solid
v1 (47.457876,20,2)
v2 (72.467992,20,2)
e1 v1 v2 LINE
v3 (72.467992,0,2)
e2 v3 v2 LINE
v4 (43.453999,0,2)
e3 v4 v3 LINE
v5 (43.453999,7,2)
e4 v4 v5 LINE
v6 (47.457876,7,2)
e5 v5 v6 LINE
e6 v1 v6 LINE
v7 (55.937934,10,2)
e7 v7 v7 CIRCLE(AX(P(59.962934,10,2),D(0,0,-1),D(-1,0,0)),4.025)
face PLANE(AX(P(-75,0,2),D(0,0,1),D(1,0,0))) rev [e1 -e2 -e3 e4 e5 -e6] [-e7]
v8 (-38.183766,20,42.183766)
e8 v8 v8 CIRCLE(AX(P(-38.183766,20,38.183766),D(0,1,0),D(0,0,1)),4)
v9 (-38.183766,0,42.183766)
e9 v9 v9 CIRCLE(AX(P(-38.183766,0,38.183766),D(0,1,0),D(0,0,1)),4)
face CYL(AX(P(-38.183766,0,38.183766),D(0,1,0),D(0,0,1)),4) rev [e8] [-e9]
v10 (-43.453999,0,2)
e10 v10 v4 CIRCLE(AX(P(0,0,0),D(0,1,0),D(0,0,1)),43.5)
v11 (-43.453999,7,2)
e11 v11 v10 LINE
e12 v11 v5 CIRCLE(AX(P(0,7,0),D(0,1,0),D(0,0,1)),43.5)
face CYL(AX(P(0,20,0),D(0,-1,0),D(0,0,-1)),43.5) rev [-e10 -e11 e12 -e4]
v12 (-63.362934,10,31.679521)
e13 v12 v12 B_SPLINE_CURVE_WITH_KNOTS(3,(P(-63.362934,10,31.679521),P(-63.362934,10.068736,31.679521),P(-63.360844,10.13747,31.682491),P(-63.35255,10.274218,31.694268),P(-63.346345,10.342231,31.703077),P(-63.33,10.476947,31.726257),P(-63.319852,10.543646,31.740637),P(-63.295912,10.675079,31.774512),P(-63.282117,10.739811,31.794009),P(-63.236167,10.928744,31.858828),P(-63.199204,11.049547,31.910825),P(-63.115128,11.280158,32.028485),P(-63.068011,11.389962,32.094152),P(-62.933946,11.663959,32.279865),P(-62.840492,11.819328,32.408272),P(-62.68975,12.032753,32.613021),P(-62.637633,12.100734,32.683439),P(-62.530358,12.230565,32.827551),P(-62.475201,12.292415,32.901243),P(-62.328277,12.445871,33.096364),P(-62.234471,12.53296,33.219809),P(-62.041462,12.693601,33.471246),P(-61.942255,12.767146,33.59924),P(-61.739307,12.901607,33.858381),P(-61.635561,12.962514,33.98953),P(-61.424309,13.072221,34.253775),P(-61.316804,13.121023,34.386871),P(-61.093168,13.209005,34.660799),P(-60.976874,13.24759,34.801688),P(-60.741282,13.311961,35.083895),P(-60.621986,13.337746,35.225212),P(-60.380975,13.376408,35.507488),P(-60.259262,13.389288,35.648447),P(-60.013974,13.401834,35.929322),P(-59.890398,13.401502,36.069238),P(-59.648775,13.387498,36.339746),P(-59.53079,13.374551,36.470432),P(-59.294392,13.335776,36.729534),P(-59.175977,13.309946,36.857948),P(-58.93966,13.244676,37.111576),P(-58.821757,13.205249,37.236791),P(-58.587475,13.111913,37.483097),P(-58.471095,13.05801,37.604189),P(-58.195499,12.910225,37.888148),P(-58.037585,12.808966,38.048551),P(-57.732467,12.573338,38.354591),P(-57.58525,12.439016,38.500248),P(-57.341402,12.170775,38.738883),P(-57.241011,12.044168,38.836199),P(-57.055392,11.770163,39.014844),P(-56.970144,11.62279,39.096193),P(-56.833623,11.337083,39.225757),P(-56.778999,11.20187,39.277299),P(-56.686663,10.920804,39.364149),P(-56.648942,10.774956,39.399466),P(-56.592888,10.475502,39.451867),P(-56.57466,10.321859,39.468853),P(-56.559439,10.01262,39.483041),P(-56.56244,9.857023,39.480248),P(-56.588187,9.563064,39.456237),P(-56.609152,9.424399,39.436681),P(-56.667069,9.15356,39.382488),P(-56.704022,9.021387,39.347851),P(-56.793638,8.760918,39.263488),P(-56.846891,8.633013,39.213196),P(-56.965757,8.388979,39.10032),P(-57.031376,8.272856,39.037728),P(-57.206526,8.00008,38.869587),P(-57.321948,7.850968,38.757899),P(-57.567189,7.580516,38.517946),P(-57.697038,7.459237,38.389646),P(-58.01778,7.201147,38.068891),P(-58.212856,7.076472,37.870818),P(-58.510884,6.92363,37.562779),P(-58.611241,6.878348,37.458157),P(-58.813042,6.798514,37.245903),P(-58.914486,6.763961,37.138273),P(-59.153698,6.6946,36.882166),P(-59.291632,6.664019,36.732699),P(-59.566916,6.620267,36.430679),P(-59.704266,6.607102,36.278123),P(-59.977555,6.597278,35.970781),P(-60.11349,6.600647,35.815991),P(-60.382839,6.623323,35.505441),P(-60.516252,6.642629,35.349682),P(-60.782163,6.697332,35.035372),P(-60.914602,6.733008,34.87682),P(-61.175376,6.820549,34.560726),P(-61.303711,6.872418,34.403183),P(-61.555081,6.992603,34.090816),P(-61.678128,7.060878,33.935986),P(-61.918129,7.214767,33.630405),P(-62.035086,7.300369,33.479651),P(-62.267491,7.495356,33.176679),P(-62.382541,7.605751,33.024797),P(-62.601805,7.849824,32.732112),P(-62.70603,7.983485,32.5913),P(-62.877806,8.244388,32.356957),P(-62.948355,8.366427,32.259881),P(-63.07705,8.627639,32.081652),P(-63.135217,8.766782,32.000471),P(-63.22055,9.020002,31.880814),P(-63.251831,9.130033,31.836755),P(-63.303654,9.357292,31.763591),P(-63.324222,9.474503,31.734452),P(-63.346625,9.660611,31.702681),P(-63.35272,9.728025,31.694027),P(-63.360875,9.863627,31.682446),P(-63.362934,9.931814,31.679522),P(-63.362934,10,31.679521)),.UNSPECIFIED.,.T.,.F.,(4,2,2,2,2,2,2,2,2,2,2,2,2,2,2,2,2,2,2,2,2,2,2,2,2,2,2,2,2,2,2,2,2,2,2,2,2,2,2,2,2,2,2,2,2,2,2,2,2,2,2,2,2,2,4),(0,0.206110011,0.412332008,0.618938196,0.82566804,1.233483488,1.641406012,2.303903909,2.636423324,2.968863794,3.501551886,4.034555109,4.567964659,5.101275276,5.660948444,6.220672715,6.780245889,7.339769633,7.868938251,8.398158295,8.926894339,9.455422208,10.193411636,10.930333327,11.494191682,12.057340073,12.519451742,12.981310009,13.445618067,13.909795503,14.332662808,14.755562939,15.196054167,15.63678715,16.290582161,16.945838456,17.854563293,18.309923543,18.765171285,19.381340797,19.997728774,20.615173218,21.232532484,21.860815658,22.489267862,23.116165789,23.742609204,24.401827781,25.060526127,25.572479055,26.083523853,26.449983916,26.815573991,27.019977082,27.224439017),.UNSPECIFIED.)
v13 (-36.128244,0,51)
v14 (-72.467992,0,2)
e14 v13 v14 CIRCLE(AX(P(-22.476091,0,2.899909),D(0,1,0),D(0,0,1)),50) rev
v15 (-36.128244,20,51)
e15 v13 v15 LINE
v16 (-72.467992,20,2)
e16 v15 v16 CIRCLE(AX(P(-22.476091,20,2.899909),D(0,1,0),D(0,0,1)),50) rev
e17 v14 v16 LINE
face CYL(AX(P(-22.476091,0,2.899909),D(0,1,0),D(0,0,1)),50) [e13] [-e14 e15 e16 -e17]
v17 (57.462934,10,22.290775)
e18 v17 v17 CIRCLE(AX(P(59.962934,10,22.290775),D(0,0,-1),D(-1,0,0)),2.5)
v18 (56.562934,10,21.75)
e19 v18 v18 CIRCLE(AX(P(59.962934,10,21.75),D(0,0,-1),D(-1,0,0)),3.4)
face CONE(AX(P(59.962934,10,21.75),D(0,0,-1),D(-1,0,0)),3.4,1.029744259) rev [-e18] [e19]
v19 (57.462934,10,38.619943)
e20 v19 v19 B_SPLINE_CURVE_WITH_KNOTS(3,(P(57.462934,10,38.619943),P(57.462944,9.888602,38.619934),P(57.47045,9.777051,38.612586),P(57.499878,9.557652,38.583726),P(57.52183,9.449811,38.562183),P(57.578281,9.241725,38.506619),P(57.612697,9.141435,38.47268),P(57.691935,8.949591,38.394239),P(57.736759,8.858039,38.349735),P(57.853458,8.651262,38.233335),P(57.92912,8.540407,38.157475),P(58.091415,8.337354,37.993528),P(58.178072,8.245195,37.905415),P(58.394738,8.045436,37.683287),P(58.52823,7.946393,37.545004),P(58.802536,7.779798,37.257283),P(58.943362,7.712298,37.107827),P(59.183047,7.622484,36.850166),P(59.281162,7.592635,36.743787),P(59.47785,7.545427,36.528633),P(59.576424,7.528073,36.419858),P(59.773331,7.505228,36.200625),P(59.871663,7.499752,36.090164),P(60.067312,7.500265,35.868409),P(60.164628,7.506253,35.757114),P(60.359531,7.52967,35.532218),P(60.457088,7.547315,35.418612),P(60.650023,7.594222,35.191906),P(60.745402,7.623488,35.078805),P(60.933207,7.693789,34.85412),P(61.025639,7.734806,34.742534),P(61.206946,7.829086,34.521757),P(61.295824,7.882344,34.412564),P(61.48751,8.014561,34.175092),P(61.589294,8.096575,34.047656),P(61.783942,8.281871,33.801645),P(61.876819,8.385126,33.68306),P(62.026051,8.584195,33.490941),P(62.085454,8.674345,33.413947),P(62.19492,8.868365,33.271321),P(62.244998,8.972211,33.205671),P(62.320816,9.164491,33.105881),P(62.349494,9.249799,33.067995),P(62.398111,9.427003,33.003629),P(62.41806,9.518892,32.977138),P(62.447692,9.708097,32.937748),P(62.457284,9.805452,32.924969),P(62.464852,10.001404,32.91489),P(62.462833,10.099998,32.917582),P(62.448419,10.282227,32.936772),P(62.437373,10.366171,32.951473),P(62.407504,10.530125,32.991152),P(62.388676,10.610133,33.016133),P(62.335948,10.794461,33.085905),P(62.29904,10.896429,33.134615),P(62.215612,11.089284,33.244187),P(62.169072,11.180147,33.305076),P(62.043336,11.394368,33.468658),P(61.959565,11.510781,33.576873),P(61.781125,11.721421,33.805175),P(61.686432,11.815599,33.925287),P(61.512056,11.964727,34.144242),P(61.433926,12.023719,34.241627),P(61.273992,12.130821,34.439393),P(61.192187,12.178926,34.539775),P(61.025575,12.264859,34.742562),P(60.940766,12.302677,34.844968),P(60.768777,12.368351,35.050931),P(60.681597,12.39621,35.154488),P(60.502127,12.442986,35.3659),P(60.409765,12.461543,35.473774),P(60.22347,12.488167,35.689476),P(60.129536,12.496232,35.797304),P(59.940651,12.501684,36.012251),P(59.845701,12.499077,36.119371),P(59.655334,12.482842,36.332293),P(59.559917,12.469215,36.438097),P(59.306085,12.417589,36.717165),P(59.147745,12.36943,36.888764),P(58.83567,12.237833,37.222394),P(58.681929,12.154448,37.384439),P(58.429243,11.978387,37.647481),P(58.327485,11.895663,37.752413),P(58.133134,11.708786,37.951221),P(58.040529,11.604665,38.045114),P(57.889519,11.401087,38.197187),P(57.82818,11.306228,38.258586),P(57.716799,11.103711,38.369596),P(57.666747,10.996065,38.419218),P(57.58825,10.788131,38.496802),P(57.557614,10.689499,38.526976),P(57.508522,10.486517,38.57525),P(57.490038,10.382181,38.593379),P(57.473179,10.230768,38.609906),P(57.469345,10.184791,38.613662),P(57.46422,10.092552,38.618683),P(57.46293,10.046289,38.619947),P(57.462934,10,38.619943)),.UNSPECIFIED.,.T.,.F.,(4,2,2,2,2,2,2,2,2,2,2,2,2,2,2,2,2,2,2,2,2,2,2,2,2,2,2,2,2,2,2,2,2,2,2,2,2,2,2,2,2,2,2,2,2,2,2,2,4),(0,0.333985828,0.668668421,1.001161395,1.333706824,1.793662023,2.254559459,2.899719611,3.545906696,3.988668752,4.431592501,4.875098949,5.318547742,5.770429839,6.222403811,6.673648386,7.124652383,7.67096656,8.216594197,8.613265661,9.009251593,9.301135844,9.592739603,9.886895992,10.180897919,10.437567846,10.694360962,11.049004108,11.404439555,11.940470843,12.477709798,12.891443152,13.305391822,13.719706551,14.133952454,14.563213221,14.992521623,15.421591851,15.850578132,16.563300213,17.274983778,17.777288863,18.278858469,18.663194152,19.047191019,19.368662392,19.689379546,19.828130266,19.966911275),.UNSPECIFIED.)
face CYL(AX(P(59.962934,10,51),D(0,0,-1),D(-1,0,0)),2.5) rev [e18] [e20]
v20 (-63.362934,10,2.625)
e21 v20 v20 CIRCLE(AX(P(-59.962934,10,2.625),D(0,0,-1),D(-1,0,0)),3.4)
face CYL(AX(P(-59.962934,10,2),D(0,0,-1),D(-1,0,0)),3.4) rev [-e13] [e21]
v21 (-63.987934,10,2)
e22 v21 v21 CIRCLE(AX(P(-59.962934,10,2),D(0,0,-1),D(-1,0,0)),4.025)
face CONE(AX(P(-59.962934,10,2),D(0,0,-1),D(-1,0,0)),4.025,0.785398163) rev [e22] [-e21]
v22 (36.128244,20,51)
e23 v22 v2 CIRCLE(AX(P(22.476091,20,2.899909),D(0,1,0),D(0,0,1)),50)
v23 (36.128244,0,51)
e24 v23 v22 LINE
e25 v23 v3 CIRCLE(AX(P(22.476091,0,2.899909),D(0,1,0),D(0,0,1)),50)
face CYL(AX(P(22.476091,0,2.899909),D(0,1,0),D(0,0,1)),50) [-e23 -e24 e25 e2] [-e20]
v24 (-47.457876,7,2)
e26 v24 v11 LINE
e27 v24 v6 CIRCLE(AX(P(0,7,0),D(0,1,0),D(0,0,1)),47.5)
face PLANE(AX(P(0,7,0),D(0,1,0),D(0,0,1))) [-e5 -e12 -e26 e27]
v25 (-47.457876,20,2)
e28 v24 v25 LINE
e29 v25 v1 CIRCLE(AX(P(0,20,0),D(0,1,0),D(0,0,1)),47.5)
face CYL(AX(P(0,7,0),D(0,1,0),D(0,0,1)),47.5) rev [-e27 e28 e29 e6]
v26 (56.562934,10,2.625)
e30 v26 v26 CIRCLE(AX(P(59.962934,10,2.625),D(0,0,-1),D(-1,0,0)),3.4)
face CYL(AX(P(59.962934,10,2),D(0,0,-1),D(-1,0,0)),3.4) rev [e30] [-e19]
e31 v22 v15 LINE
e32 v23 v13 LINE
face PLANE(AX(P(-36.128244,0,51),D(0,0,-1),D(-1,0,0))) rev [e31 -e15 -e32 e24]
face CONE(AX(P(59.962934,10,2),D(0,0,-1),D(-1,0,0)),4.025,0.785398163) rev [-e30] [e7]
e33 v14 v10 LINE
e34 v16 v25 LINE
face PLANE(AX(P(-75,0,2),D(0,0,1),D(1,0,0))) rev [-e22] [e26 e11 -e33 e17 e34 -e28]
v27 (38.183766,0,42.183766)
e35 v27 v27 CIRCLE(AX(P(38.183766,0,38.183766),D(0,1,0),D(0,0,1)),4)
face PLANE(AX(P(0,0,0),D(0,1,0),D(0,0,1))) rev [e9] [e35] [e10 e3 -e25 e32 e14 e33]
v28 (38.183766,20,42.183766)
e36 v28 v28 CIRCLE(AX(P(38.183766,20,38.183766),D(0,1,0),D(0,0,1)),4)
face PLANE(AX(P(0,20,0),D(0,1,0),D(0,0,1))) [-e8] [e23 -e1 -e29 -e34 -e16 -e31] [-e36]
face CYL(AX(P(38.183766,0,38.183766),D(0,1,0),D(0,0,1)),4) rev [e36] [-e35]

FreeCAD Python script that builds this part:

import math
import FreeCAD as App
import Part
import Sketcher

V = App.Vector


def add_polygon(sketch, points):
    """Adds a closed chain of lines whose ends are joined by coincident constraints."""
    first, n = sketch.GeometryCount, len(points)
    for a, b in zip(points, points[1:] + points[:1]):
        sketch.addGeometry(Part.LineSegment(App.Vector(*a, 0), App.Vector(*b, 0)), False)
    for i in range(n):
        sketch.addConstraint(Sketcher.Constraint("Coincident", first + i, 2, first + (i + 1) % n, 1))

doc = App.newDocument("Part")
body = doc.addObject("PartDesign::Body", "Body")

# Sketch on XZ plane
sketch1 = body.newObject("Sketcher::SketchObject", "Sketch")
sketch1.AttachmentSupport = (doc.getObject("XZ_Plane"), [""])
sketch1.MapMode = "FlatFace"
sketch1.addGeometry(Part.Circle(V(0, 0, 0), V(0, 0, 1), 62.5), False)
sketch1.addGeometry(Part.Circle(V(0, 0, 0), V(0, 0, 1), 43.5), False)
sketch1.addConstraint(Sketcher.Constraint("Coincident", 0, 3, -1, 1))
sketch1.addConstraint(Sketcher.Constraint("Coincident", 1, 3, -1, 1))
sketch1.addConstraint(Sketcher.Constraint("Diameter", 0, 125.0))
sketch1.addConstraint(Sketcher.Constraint("Diameter", 1, 87.0))
pad1 = body.newObject("PartDesign::Pad", "Pad")
pad1.Profile = sketch1
pad1.Length = 20
pad1.Reversed = True

# Sketch on XZ plane
sketch2 = body.newObject("Sketcher::SketchObject", "Sketch001")
sketch2.AttachmentSupport = (doc.getObject("XZ_Plane"), [""])
sketch2.MapMode = "FlatFace"
sketch2.AttachmentOffset = App.Placement(V(0, 0, -20), App.Rotation())
sketch2.addGeometry(Part.Circle(V(0, 0, 0), V(0, 0, 1), 47.5), False)
sketch2.addConstraint(Sketcher.Constraint("Coincident", 0, 3, -1, 1))
sketch2.addConstraint(Sketcher.Constraint("Diameter", 0, 95.0))
pocket1 = body.newObject("PartDesign::Pocket", "Pocket")
pocket1.Profile = sketch2
pocket1.Length = 13
pocket1.Reversed = True

# Sketch on XZ plane
sketch3 = body.newObject("Sketcher::SketchObject", "Sketch002")
sketch3.AttachmentSupport = (doc.getObject("XZ_Plane"), [""])
sketch3.MapMode = "FlatFace"
sketch3.AttachmentOffset = App.Placement(V(0, 0, -20), App.Rotation())
sketch3.addGeometry(Part.Circle(V(38.183766, -38.183766, 0), V(0, 0, 1), 4), False)
sketch3.addGeometry(Part.Circle(V(38.183766, 38.183766, 0), V(0, 0, 1), 4), False)
sketch3.addGeometry(Part.Circle(V(-38.183766, 38.183766, 0), V(0, 0, 1), 4), False)
sketch3.addGeometry(Part.Circle(V(-38.183766, -38.183766, 0), V(0, 0, 1), 4), False)
sketch3.addConstraint(Sketcher.Constraint("Equal", 0, 1))
sketch3.addConstraint(Sketcher.Constraint("Equal", 1, 2))
sketch3.addConstraint(Sketcher.Constraint("Equal", 2, 3))
sketch3.addConstraint(Sketcher.Constraint("Symmetric", 0, 3, 2, 3, -1, 1))
sketch3.addConstraint(Sketcher.Constraint("Symmetric", 1, 3, 3, 3, -1, 1))
sketch3.addConstraint(Sketcher.Constraint("Symmetric", 1, 3, 2, 3, -2))
sketch3.addConstraint(Sketcher.Constraint("Diameter", 0, 8.0))
sketch3.addConstraint(Sketcher.Constraint("DistanceX", -1, 1, 0, 3, 38.183766))
sketch3.addConstraint(Sketcher.Constraint("DistanceY", 0, 3, -1, 1, 38.183766))
pocket2 = body.newObject("PartDesign::Pocket", "Pocket001")
pocket2.Profile = sketch3
pocket2.Type = "ThroughAll"
pocket2.Reversed = True

# Sketch on XZ plane
sketch4 = body.newObject("Sketcher::SketchObject", "Sketch003")
sketch4.AttachmentSupport = (doc.getObject("XZ_Plane"), [""])
sketch4.MapMode = "FlatFace"
sketch4.AttachmentOffset = App.Placement(V(0, 0, -20), App.Rotation())
add_polygon(sketch4, [(-75, -62.5), (-75, 2), (75, 2), (75, -62.5)])  # lines 0-3
add_polygon(sketch4, [(-36.128244, 51), (-36.128244, 62.5), (36.128244, 62.5), (36.128244, 51)])  # lines 4-7
sketch4.addConstraint(Sketcher.Constraint("Vertical", 0))
sketch4.addConstraint(Sketcher.Constraint("Horizontal", 1))
sketch4.addConstraint(Sketcher.Constraint("Vertical", 2))
sketch4.addConstraint(Sketcher.Constraint("Horizontal", 3))
sketch4.addConstraint(Sketcher.Constraint("Vertical", 4))
sketch4.addConstraint(Sketcher.Constraint("Horizontal", 5))
sketch4.addConstraint(Sketcher.Constraint("Vertical", 6))
sketch4.addConstraint(Sketcher.Constraint("Horizontal", 7))
sketch4.addConstraint(Sketcher.Constraint("DistanceX", 1, 1, 1, 2, 150.0))
sketch4.addConstraint(Sketcher.Constraint("DistanceY", 0, 1, 0, 2, 64.5))
sketch4.addConstraint(Sketcher.Constraint("DistanceY", 4, 1, 4, 2, 11.5))
sketch4.addConstraint(Sketcher.Constraint("DistanceX", 0, 2, -1, 1, 75.0))
sketch4.addConstraint(Sketcher.Constraint("DistanceY", -1, 1, 0, 2, 2.0))
sketch4.addConstraint(Sketcher.Constraint("DistanceY", -1, 1, 6, 2, 51.0))
sketch4.addConstraint(Sketcher.Constraint("DistanceX", 5, 1, 5, 2, 72.256488))
sketch4.addConstraint(Sketcher.Constraint("DistanceX", 4, 2, -1, 1, 36.128244))
pocket3 = body.newObject("PartDesign::Pocket", "Pocket002")
pocket3.Profile = sketch4
pocket3.Type = "ThroughAll"
pocket3.Reversed = True

# Sketch on XZ plane
sketch5 = body.newObject("Sketcher::SketchObject", "Sketch004")
sketch5.AttachmentSupport = (doc.getObject("XZ_Plane"), [""])
sketch5.MapMode = "FlatFace"
sketch5.AttachmentOffset = App.Placement(V(0, 0, -20), App.Rotation())
sketch5.addGeometry(Part.LineSegment(V(-62.467992, 2, 0), V(-72.467992, 2, 0)), False)
sketch5.addGeometry(Part.ArcOfCircle(Part.Circle(V(-22.476091, 2.899909, 0), V(0, 0, 1), 50), math.radians(105.845427), math.radians(181.031276)), False)
sketch5.addGeometry(Part.ArcOfCircle(Part.Circle(V(0, 0, 0), V(0, 0, 1), 62.5), math.radians(125.31364), math.radians(178.166222)), False)
sketch5.addGeometry(Part.ArcOfCircle(Part.Circle(V(0, 0, 0), V(0, 0, 1), 62.5), math.radians(1.833778), math.radians(54.68636)), False)
sketch5.addGeometry(Part.ArcOfCircle(Part.Circle(V(22.476091, 2.899909, 0), V(0, 0, 1), 50), math.radians(-1.031276), math.radians(74.154573)), False)
sketch5.addGeometry(Part.LineSegment(V(72.467992, 2, 0), V(62.467992, 2, 0)), False)
sketch5.addConstraint(Sketcher.Constraint("Coincident", 0, 2, 1, 2))
sketch5.addConstraint(Sketcher.Constraint("Coincident", 1, 1, 2, 1))
sketch5.addConstraint(Sketcher.Constraint("Coincident", 2, 2, 0, 1))
sketch5.addConstraint(Sketcher.Constraint("Coincident", 3, 2, 4, 2))
sketch5.addConstraint(Sketcher.Constraint("Coincident", 4, 1, 5, 1))
sketch5.addConstraint(Sketcher.Constraint("Coincident", 5, 2, 3, 1))
sketch5.addConstraint(Sketcher.Constraint("Horizontal", 0))
sketch5.addConstraint(Sketcher.Constraint("Horizontal", 5))
sketch5.addConstraint(Sketcher.Constraint("Coincident", 2, 3, -1, 1))
sketch5.addConstraint(Sketcher.Constraint("Coincident", 3, 3, -1, 1))
sketch5.addConstraint(Sketcher.Constraint("Equal", 2, 3))
sketch5.addConstraint(Sketcher.Constraint("Equal", 1, 4))
sketch5.addConstraint(Sketcher.Constraint("Symmetric", 1, 3, 4, 3, -2))
sketch5.addConstraint(Sketcher.Constraint("Horizontal", 2, 2, 4, 1))
sketch5.addConstraint(Sketcher.Constraint("Radius", 1, 50.0))
sketch5.addConstraint(Sketcher.Constraint("Radius", 2, 62.5))
sketch5.addConstraint(Sketcher.Constraint("DistanceX", 0, 2, 0, 1, 10.0))
sketch5.addConstraint(Sketcher.Constraint("DistanceY", -1, 1, 0, 2, 2.0))
sketch5.addConstraint(Sketcher.Constraint("DistanceY", -1, 1, 1, 1, 51.0))
pad2 = body.newObject("PartDesign::Pad", "Pad001")
pad2.Profile = sketch5
pad2.Length = 20

# Sketch on XY plane
sketch6 = body.newObject("Sketcher::SketchObject", "Sketch005")
sketch6.AttachmentSupport = (doc.getObject("XY_Plane"), [""])
sketch6.MapMode = "FlatFace"
sketch6.AttachmentOffset = App.Placement(V(0, 0, 2), App.Rotation())
sketch6.addGeometry(Part.Circle(V(59.962934, 10, 0), V(0, 0, 1), 2.5), False)
sketch6.addConstraint(Sketcher.Constraint("Diameter", 0, 5.0))
sketch6.addConstraint(Sketcher.Constraint("DistanceY", -1, 1, 0, 3, 10.0))
sketch6.addConstraint(Sketcher.Constraint("DistanceX", -1, 1, 0, 3, 59.962934))
pocket4 = body.newObject("PartDesign::Pocket", "Pocket003")
pocket4.Profile = sketch6
pocket4.Type = "ThroughAll"
pocket4.Reversed = True

# Sketch on XY plane
sketch7 = body.newObject("Sketcher::SketchObject", "Sketch006")
sketch7.AttachmentSupport = (doc.getObject("XY_Plane"), [""])
sketch7.MapMode = "FlatFace"
sketch7.AttachmentOffset = App.Placement(V(0, 0, 2), App.Rotation())
sketch7.addGeometry(Part.Circle(V(-59.962934, 10, 0), V(0, 0, 1), 3.4), False)
sketch7.addConstraint(Sketcher.Constraint("Diameter", 0, 6.8))
sketch7.addConstraint(Sketcher.Constraint("DistanceY", -1, 1, 0, 3, 10.0))
sketch7.addConstraint(Sketcher.Constraint("DistanceX", 0, 3, -1, 1, 59.962934))
doc.recompute()
hole = body.newObject("PartDesign::Hole", "Hole")
hole.Profile = sketch7
hole.ThreadType = "None"
hole.Diameter = 6.8
hole.DepthType = "Dimension"
hole.Depth = 38.75
hole.DrillPoint = "Angled"
hole.DrillPointAngle = 118
hole.HoleCutType = "Countersink"
hole.HoleCutDiameter = 8.05
hole.HoleCutCountersinkAngle = 90
hole.Reversed = True

# Sketch on XY plane
sketch8 = body.newObject("Sketcher::SketchObject", "Sketch007")
sketch8.AttachmentSupport = (doc.getObject("XY_Plane"), [""])
sketch8.MapMode = "FlatFace"
sketch8.AttachmentOffset = App.Placement(V(0, 0, 2), App.Rotation())
sketch8.addGeometry(Part.Circle(V(59.962934, 10, 0), V(0, 0, 1), 3.4), False)
sketch8.addConstraint(Sketcher.Constraint("Diameter", 0, 6.8))
sketch8.addConstraint(Sketcher.Constraint("DistanceY", -1, 1, 0, 3, 10.0))
sketch8.addConstraint(Sketcher.Constraint("DistanceX", -1, 1, 0, 3, 59.962934))
doc.recompute()
hole2 = body.newObject("PartDesign::Hole", "Hole001")
hole2.Profile = sketch8
hole2.ThreadType = "None"
hole2.Diameter = 6.8
hole2.DepthType = "Dimension"
hole2.Depth = 19.75
hole2.DrillPoint = "Angled"
hole2.DrillPointAngle = 118
hole2.HoleCutType = "Countersink"
hole2.HoleCutDiameter = 8.05
hole2.HoleCutCountersinkAngle = 90
hole2.Reversed = True

doc.recompute()
